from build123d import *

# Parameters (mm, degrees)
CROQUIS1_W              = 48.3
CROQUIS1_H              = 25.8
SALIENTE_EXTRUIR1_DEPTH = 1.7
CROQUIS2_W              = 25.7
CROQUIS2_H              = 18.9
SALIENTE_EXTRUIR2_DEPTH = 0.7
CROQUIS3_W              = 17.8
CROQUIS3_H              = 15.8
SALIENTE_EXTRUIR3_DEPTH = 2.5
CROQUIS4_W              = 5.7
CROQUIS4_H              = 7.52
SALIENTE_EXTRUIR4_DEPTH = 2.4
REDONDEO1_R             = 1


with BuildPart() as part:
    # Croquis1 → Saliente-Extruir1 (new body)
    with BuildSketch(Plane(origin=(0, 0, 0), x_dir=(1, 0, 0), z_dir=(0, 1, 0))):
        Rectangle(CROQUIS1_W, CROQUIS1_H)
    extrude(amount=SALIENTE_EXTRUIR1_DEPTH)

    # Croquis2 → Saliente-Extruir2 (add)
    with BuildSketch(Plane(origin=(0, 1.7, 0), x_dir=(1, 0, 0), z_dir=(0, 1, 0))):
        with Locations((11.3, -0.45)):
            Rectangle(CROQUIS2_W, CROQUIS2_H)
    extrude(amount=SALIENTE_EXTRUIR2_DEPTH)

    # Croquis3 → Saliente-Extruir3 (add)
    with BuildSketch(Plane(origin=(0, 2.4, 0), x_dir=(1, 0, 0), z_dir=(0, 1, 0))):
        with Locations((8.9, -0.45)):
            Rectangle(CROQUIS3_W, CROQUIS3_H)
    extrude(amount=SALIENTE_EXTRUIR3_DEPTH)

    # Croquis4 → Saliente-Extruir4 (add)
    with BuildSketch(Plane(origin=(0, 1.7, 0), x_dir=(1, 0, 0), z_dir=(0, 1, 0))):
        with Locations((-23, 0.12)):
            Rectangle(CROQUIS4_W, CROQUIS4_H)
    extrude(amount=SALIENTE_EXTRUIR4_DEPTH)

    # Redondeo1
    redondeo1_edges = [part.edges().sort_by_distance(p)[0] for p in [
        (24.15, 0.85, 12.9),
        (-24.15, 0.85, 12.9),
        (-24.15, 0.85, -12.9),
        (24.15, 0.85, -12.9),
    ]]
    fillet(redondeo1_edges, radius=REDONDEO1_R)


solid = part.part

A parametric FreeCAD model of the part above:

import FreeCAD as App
import Part
import Sketcher

V = App.Vector


def edges_at(feature, points):
    """Names of the edges that pass closest to the given points."""
    edges = feature.Shape.Edges
    near = lambda p: min(range(len(edges)), key=lambda i: edges[i].distToShape(Part.Vertex(*p))[0])
    return sorted({f"Edge{near(p) + 1}" for p in points})


def add_polygon(sketch, points):
    """Adds a closed chain of lines whose ends are joined by coincident constraints."""
    first, n = sketch.GeometryCount, len(points)
    for a, b in zip(points, points[1:] + points[:1]):
        sketch.addGeometry(Part.LineSegment(App.Vector(*a, 0), App.Vector(*b, 0)), False)
    for i in range(n):
        sketch.addConstraint(Sketcher.Constraint("Coincident", first + i, 2, first + (i + 1) % n, 1))

doc = App.newDocument("Part")
body = doc.addObject("PartDesign::Body", "Body")

sketch1 = body.newObject("Sketcher::SketchObject", "Sketch")
sketch1.AttachmentSupport = (doc.getObject("XZ_Plane"), [""])
sketch1.MapMode = "FlatFace"
add_polygon(sketch1, [(-24, -13), (-24, 13), (24, 13), (24, -13)])
sketch1.addConstraint(Sketcher.Constraint("Vertical", 0))
sketch1.addConstraint(Sketcher.Constraint("Horizontal", 1))
sketch1.addConstraint(Sketcher.Constraint("Vertical", 2))
sketch1.addConstraint(Sketcher.Constraint("Horizontal", 3))
sketch1.addConstraint(Sketcher.Constraint("Symmetric", 0, 2, 2, 2, -1, 1))
sketch1.addConstraint(Sketcher.Constraint("DistanceX", 1, 1, 1, 2, 48.3))
sketch1.addConstraint(Sketcher.Constraint("DistanceY", 0, 1, 0, 2, 25.8))
pad1 = body.newObject("PartDesign::Pad", "Pad")
pad1.Profile = sketch1
pad1.Length = 1.7
pad1.Reversed = True

sketch2 = body.newObject("Sketcher::SketchObject", "Sketch001")
sketch2.AttachmentSupport = (doc.getObject("XZ_Plane"), [""])
sketch2.MapMode = "FlatFace"
sketch2.AttachmentOffset = App.Placement(V(0, 0, -1.7), App.Rotation())
add_polygon(sketch2, [(-2, -9), (-2, 10), (24, 10), (24, -9)])
sketch2.addConstraint(Sketcher.Constraint("Vertical", 0))
sketch2.addConstraint(Sketcher.Constraint("Horizontal", 1))
sketch2.addConstraint(Sketcher.Constraint("Vertical", 2))
sketch2.addConstraint(Sketcher.Constraint("Horizontal", 3))
sketch2.addConstraint(Sketcher.Constraint("DistanceX", 1, 1, 1, 2, 25.7))
sketch2.addConstraint(Sketcher.Constraint("DistanceY", 0, 1, 0, 2, 18.9))
sketch2.addConstraint(Sketcher.Constraint("DistanceY", 2, 2, -1, 1, 9.0))
sketch2.addConstraint(Sketcher.Constraint("DistanceX", 0, 2, -1, 1, 1.55))
pad2 = body.newObject("PartDesign::Pad", "Pad001")
pad2.Profile = sketch2
pad2.Length = 0.7
pad2.Reversed = True

sketch3 = body.newObject("Sketcher::SketchObject", "Sketch002")
sketch3.AttachmentSupport = (doc.getObject("XZ_Plane"), [""])
sketch3.MapMode = "FlatFace"
sketch3.AttachmentOffset = App.Placement(V(0, 0, -2.4), App.Rotation())
add_polygon(sketch3, [(0, -7), (0, 8), (18, 8), (18, -7)])
sketch3.addConstraint(Sketcher.Constraint("Vertical", 0))
sketch3.addConstraint(Sketcher.Constraint("Horizontal", 1))
sketch3.addConstraint(Sketcher.Constraint("Vertical", 2))
sketch3.addConstraint(Sketcher.Constraint("Horizontal", 3))
sketch3.addConstraint(Sketcher.Constraint("PointOnObject", 0, 2, -2))
sketch3.addConstraint(Sketcher.Constraint("DistanceX", 1, 1, 1, 2, 17.8))
sketch3.addConstraint(Sketcher.Constraint("DistanceY", 0, 1, 0, 2, 15.8))
sketch3.addConstraint(Sketcher.Constraint("DistanceY", -1, 1, 0, 2, 8.35))
pad3 = body.newObject("PartDesign::Pad", "Pad002")
pad3.Profile = sketch3
pad3.Length = 2.5
pad3.Reversed = True

sketch4 = body.newObject("Sketcher::SketchObject", "Sketch003")
sketch4.AttachmentSupport = (doc.getObject("XZ_Plane"), [""])
sketch4.MapMode = "FlatFace"
sketch4.AttachmentOffset = App.Placement(V(0, 0, -1.7), App.Rotation())
add_polygon(sketch4, [(-26, -4), (-26, 4), (-20, 4), (-20, -4)])
sketch4.addConstraint(Sketcher.Constraint("Vertical", 0))
sketch4.addConstraint(Sketcher.Constraint("Horizontal", 1))
sketch4.addConstraint(Sketcher.Constraint("Vertical", 2))
sketch4.addConstraint(Sketcher.Constraint("Horizontal", 3))
sketch4.addConstraint(Sketcher.Constraint("DistanceX", 1, 1, 1, 2, 5.7))
sketch4.addConstraint(Sketcher.Constraint("DistanceY", 0, 1, 0, 2, 7.52))
sketch4.addConstraint(Sketcher.Constraint("DistanceX", 0, 2, -1, 1, 25.85))
sketch4.addConstraint(Sketcher.Constraint("DistanceY", -1, 1, 0, 2, 3.64))
pad4 = body.newObject("PartDesign::Pad", "Pad003")
pad4.Profile = sketch4
pad4.Length = 2.4
pad4.Reversed = True
doc.recompute()

fillet = body.newObject("PartDesign::Fillet", "Fillet")
fillet.Base = (pad4, edges_at(pad4, [
    (24.15, 0.85, 12.9),
    (-24.15, 0.85, 12.9),
    (-24.15, 0.85, -12.9),
    (24.15, 0.85, -12.9),
]))
fillet.Radius = 1

doc.recompute()
